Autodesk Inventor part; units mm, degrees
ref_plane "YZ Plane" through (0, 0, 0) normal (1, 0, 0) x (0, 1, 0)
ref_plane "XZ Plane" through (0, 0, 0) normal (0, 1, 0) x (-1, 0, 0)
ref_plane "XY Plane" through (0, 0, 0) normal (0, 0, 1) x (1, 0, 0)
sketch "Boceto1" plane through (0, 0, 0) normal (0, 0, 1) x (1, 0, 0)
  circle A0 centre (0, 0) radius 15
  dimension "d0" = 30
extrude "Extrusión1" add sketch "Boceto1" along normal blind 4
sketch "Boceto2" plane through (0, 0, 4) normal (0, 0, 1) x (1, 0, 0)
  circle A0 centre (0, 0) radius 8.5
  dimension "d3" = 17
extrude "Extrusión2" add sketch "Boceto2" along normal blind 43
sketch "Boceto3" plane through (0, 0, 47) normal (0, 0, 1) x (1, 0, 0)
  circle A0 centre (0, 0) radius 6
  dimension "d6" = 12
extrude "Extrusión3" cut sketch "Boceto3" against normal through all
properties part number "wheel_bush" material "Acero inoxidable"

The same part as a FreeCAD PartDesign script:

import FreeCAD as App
import Part
import Sketcher
from FreeCAD import Vector

doc = App.newDocument("Part")
body = doc.addObject("PartDesign::Body", "Body")

sketch1 = body.newObject("Sketcher::SketchObject", "Sketch")
sketch1.AttachmentSupport = (doc.getObject("XY_Plane"), [""])
sketch1.MapMode = "FlatFace"
sketch1.addGeometry(Part.Circle(Vector(0, 0, 0), Vector(0, 0, 1), 15), False)
sketch1.addConstraint(Sketcher.Constraint("Coincident", 0, 3, -1, 1))
sketch1.addConstraint(Sketcher.Constraint("Diameter", 0, 30.0))
pad1 = body.newObject("PartDesign::Pad", "Pad")
pad1.Profile = sketch1
pad1.Length = 4

sketch2 = body.newObject("Sketcher::SketchObject", "Sketch001")
sketch2.AttachmentSupport = (doc.getObject("XY_Plane"), [""])
sketch2.MapMode = "FlatFace"
sketch2.AttachmentOffset = App.Placement(Vector(0, 0, 4), App.Rotation())
sketch2.addGeometry(Part.Circle(Vector(0, 0, 0), Vector(0, 0, 1), 8), False)
sketch2.addConstraint(Sketcher.Constraint("Coincident", 0, 3, -1, 1))
sketch2.addConstraint(Sketcher.Constraint("Diameter", 0, 17.0))
pad2 = body.newObject("PartDesign::Pad", "Pad001")
pad2.Profile = sketch2
pad2.Length = 43

sketch3 = body.newObject("Sketcher::SketchObject", "Sketch002")
sketch3.AttachmentSupport = (doc.getObject("XY_Plane"), [""])
sketch3.MapMode = "FlatFace"
sketch3.AttachmentOffset = App.Placement(Vector(0, 0, 47), App.Rotation())
sketch3.addGeometry(Part.Circle(Vector(0, 0, 0), Vector(0, 0, 1), 6), False)
sketch3.addConstraint(Sketcher.Constraint("Coincident", 0, 3, -1, 1))
sketch3.addConstraint(Sketcher.Constraint("Diameter", 0, 12.0))
pocket1 = body.newObject("PartDesign::Pocket", "Pocket")
pocket1.Profile = sketch3
pocket1.Type = "ThroughAll"

doc.recompute()
